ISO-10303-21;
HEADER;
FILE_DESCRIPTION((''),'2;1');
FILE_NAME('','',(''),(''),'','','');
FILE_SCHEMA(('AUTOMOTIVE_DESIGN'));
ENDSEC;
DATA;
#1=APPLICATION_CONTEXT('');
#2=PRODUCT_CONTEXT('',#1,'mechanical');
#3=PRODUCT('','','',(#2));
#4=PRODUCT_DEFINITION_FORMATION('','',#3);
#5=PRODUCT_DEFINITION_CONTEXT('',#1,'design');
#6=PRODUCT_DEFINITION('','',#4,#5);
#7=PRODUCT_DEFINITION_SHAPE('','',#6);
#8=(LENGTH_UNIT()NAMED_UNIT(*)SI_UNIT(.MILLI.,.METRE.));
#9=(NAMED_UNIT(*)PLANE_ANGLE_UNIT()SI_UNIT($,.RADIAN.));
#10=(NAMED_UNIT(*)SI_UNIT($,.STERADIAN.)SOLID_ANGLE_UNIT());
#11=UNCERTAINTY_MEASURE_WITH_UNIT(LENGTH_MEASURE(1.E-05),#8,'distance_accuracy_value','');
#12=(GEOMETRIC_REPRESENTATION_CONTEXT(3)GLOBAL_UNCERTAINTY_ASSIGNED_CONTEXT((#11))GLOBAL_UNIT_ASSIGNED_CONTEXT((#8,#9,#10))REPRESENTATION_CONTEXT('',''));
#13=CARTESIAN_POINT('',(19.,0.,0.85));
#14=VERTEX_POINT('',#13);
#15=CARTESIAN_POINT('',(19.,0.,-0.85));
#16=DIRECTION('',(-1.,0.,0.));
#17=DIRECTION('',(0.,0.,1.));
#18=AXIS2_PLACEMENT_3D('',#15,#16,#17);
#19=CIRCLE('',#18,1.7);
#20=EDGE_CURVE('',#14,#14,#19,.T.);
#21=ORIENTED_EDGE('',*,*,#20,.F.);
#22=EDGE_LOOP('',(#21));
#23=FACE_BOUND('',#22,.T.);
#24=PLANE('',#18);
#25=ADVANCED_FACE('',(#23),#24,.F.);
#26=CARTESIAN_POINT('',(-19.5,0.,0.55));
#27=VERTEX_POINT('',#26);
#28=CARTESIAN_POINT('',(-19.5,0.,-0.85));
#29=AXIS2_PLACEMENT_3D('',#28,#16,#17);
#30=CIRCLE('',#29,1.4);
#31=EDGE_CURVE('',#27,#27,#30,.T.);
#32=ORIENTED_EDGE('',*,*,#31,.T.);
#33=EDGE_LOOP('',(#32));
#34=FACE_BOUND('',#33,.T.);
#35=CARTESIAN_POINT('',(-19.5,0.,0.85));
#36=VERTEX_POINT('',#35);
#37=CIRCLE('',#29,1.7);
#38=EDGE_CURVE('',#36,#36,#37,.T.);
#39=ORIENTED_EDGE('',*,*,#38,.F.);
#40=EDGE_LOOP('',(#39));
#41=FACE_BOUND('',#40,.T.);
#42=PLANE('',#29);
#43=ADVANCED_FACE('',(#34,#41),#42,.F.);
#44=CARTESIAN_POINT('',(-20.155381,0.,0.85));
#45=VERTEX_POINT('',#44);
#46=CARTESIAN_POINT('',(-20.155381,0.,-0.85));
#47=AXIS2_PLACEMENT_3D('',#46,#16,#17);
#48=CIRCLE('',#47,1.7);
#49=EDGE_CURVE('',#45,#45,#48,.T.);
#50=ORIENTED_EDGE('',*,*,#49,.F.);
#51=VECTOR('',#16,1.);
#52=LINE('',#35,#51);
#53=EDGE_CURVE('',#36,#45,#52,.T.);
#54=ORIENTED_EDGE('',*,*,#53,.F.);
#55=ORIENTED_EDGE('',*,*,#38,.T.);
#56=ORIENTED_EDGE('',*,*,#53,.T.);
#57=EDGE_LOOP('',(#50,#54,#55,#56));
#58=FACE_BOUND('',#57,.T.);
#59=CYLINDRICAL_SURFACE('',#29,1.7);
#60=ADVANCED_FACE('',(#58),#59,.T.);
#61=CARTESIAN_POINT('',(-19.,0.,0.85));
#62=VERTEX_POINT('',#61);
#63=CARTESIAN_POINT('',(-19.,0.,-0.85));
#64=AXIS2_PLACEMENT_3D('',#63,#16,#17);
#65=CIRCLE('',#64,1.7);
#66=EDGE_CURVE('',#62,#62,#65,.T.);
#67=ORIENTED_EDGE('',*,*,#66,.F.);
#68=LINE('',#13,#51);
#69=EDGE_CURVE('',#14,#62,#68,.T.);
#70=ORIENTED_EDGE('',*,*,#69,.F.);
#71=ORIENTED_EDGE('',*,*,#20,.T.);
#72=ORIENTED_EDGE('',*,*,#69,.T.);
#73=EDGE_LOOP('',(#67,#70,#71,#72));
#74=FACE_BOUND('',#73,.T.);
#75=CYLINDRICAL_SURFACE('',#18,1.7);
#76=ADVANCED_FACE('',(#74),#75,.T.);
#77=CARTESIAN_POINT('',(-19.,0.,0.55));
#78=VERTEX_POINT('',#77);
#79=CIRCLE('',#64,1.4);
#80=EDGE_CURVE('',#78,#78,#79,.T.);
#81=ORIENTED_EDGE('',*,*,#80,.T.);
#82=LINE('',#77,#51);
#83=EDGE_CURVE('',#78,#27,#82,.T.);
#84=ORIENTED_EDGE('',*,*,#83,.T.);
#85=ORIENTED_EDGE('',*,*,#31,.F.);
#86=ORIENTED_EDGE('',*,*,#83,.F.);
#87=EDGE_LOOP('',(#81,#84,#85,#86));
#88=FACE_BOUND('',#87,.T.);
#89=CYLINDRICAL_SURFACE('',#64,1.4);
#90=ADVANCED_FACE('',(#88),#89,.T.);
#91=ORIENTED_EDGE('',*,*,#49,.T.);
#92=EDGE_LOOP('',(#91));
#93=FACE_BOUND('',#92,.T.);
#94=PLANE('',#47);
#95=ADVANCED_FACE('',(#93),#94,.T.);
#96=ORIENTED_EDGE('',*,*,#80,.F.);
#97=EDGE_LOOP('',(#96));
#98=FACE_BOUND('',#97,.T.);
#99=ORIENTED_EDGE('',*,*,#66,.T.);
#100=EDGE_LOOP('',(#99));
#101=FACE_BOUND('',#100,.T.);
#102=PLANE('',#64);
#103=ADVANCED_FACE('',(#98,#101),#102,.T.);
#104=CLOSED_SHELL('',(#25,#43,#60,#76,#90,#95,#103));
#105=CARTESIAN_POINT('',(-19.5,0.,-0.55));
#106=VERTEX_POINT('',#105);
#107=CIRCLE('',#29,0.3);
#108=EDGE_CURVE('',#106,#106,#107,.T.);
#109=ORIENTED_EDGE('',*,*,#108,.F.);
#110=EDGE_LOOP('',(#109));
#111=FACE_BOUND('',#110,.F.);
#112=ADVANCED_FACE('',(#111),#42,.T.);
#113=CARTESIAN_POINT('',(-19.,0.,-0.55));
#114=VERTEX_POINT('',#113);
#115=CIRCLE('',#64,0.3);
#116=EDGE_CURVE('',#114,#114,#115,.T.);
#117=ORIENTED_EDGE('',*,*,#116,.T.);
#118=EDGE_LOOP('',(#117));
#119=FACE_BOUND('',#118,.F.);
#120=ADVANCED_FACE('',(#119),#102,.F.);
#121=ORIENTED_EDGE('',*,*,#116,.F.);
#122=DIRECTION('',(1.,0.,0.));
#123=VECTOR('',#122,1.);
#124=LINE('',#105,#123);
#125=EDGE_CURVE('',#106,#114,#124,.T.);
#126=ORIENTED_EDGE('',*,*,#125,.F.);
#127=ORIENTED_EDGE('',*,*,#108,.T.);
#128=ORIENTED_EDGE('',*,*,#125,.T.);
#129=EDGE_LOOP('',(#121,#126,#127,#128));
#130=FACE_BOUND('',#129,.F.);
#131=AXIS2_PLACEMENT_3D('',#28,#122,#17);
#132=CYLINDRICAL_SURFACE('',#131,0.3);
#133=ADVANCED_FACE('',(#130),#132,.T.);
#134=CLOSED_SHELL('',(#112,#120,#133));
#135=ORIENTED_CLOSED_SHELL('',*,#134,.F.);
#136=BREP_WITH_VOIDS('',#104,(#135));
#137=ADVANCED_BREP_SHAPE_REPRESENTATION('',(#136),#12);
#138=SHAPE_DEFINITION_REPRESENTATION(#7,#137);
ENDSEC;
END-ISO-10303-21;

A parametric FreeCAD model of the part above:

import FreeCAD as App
import Part
import Sketcher

doc = App.newDocument("Part")
params = doc.addObject("Spreadsheet::Sheet", "Params")
for row, (alias, value) in enumerate([
    ("sketch1_width", "38 mm"),
    ("sketch1_width2", "0.5 mm"),
    ("sketch1_height", "1.7 mm"),
    ("sketch1_height2", "0.3 mm"),
    ("revolution_angle", "360 deg"),
], start=1):
    params.set(f"A{row}", alias)
    params.set(f"B{row}", "=" + value)
    params.setAlias(f"B{row}", alias)

body = doc.addObject("PartDesign::Body", "Body")

# Sketch on XZ plane
sketch1 = body.newObject("Sketcher::SketchObject", "Sketch")
sketch1.AttachmentSupport = (doc.getObject("XZ_Plane"), [""])
sketch1.MapMode = "FlatFace"
sketch1.addGeometry(Part.LineSegment(App.Vector(-19, -0.85, 0), App.Vector(19, -0.85, 0)), False)
sketch1.addGeometry(Part.LineSegment(App.Vector(19, -0.85, 0), App.Vector(19, 0.85, 0)), False)
sketch1.addGeometry(Part.LineSegment(App.Vector(19, 0.85, 0), App.Vector(-19, 0.85, 0)), False)
sketch1.addGeometry(Part.LineSegment(App.Vector(-19, 0.85, 0), App.Vector(-19, 0.55, 0)), False)
sketch1.addGeometry(Part.LineSegment(App.Vector(-19, 0.55, 0), App.Vector(-19.5, 0.55, 0)), False)
sketch1.addGeometry(Part.LineSegment(App.Vector(-19.5, 0.55, 0), App.Vector(-19.5, 0.85, 0)), False)
sketch1.addGeometry(Part.LineSegment(App.Vector(-19.5, 0.85, 0), App.Vector(-20.16, 0.85, 0)), False)
sketch1.addGeometry(Part.LineSegment(App.Vector(-20.16, 0.85, 0), App.Vector(-20.16, -0.85, 0)), False)
sketch1.addGeometry(Part.LineSegment(App.Vector(-20.16, -0.85, 0), App.Vector(-19.5, -0.85, 0)), False)
sketch1.addGeometry(Part.LineSegment(App.Vector(-19.5, -0.85, 0), App.Vector(-19.5, -0.55, 0)), False)
sketch1.addGeometry(Part.LineSegment(App.Vector(-19.5, -0.55, 0), App.Vector(-19, -0.55, 0)), False)
sketch1.addGeometry(Part.LineSegment(App.Vector(-19, -0.55, 0), App.Vector(-19, -0.85, 0)), False)
sketch1.addGeometry(Part.LineSegment(App.Vector(19, -0.85, 0), App.Vector(-20.16, -0.85, 0)), True)  # axis
sketch1.addConstraint(Sketcher.Constraint("Coincident", 0, 2, 1, 1))
sketch1.addConstraint(Sketcher.Constraint("Coincident", 1, 2, 2, 1))
sketch1.addConstraint(Sketcher.Constraint("Coincident", 2, 2, 3, 1))
sketch1.addConstraint(Sketcher.Constraint("Coincident", 3, 2, 4, 1))
sketch1.addConstraint(Sketcher.Constraint("Coincident", 4, 2, 5, 1))
sketch1.addConstraint(Sketcher.Constraint("Coincident", 5, 2, 6, 1))
sketch1.addConstraint(Sketcher.Constraint("Coincident", 6, 2, 7, 1))
sketch1.addConstraint(Sketcher.Constraint("Coincident", 7, 2, 8, 1))
sketch1.addConstraint(Sketcher.Constraint("Coincident", 8, 2, 9, 1))
sketch1.addConstraint(Sketcher.Constraint("Coincident", 9, 2, 10, 1))
sketch1.addConstraint(Sketcher.Constraint("Coincident", 10, 2, 11, 1))
sketch1.addConstraint(Sketcher.Constraint("Coincident", 11, 2, 0, 1))
sketch1.addConstraint(Sketcher.Constraint("Horizontal", 0))
sketch1.addConstraint(Sketcher.Constraint("Vertical", 1))
sketch1.addConstraint(Sketcher.Constraint("Horizontal", 2))
sketch1.addConstraint(Sketcher.Constraint("Vertical", 3))
sketch1.addConstraint(Sketcher.Constraint("Horizontal", 4))
sketch1.addConstraint(Sketcher.Constraint("Vertical", 5))
sketch1.addConstraint(Sketcher.Constraint("Horizontal", 6))
sketch1.addConstraint(Sketcher.Constraint("Vertical", 7))
sketch1.addConstraint(Sketcher.Constraint("Horizontal", 8))
sketch1.addConstraint(Sketcher.Constraint("Vertical", 9))
sketch1.addConstraint(Sketcher.Constraint("Horizontal", 10))
sketch1.addConstraint(Sketcher.Constraint("Vertical", 11))
sketch1.addConstraint(Sketcher.Constraint("Horizontal", 12))
sketch1.addConstraint(Sketcher.Constraint("Coincident", 12, 1, 0, 2))
sketch1.addConstraint(Sketcher.Constraint("Coincident", 12, 2, 7, 2))
sketch1.addConstraint(Sketcher.Constraint("Symmetric", 0, 2, 2, 2, -1, 1))
sketch1.addConstraint(Sketcher.Constraint("Symmetric", 5, 2, 8, 2, -1))
sketch1.addConstraint(Sketcher.Constraint("Symmetric", 3, 2, 10, 2, -1))
sketch1.addConstraint(Sketcher.Constraint("DistanceX", 0, 1, 0, 2, 38.0))
sketch1.addConstraint(Sketcher.Constraint("DistanceX", 4, 2, 4, 1, 0.5))
sketch1.addConstraint(Sketcher.Constraint("DistanceY", 1, 1, 1, 2, 1.7))
sketch1.addConstraint(Sketcher.Constraint("DistanceY", 3, 2, 3, 1, 0.3))
sketch1.addConstraint(Sketcher.Constraint("DistanceX", 6, 2, 6, 1, 0.655381))
sketch1.setExpression("Constraints[30]", "Params.sketch1_width")
sketch1.setExpression("Constraints[31]", "Params.sketch1_width2")
sketch1.setExpression("Constraints[32]", "Params.sketch1_height")
sketch1.setExpression("Constraints[33]", "Params.sketch1_height2")
revolution = body.newObject("PartDesign::Revolution", "Revolution")
revolution.Profile = sketch1
revolution.ReferenceAxis = (sketch1, ["Axis0"])
revolution.setExpression("Angle", "Params.revolution_angle")

doc.recompute()
